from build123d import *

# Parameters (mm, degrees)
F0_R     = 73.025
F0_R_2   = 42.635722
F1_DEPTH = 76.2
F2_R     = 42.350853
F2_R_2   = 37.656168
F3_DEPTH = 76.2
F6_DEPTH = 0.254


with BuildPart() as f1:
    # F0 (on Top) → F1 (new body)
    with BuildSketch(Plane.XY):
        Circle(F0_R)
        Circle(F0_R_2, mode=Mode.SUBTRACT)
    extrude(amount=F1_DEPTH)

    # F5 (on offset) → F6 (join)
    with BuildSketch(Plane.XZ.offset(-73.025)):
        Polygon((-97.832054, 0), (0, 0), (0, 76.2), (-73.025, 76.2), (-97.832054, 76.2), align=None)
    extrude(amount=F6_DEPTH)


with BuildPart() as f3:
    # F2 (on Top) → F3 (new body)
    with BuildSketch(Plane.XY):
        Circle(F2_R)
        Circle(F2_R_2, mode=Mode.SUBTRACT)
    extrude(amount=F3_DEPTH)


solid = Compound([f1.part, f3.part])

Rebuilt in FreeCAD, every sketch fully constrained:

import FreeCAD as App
import Part
import Sketcher
Q = App.Units.Quantity

doc = App.newDocument("Part")
body = doc.addObject("PartDesign::Body", "Body")

sketch1 = doc.addObject("Sketcher::SketchObject", "Sketch")
body.addObject(sketch1)
sketch1.AttachmentSupport = (doc.XY_Plane, [""])
sketch1.MapMode = "FlatFace"
sketch1.addGeometry([
    Part.Circle(App.Vector(0, 0, 0), App.Vector(0, 0, 1), 73),
    Part.Circle(App.Vector(0, 0, 0), App.Vector(0, 0, 1), 43),
], False)
sketch1.addConstraint([
    Sketcher.Constraint("Coincident", 0, 3, -1, 1),
    Sketcher.Constraint("Coincident", 1, 3, -1, 1),
    Sketcher.Constraint("Diameter", 0, Q("5.75 in")),
    Sketcher.Constraint("Diameter", 1, Q("85.271444 mm")),
])
pad1 = doc.addObject("PartDesign::Pad", "Pad")
body.addObject(pad1)
pad1.Profile = sketch1
pad1.Length = Q("3 in")

sketch2 = doc.addObject("Sketcher::SketchObject", "Sketch001")
body.addObject(sketch2)
sketch2.AttachmentSupport = (doc.XZ_Plane, [""])
sketch2.MapMode = "FlatFace"
sketch2.AttachmentOffset = App.Placement(App.Vector(0, 0, -2.875 * 25.4), App.Rotation())
sketch2.addGeometry([
    Part.LineSegment(App.Vector(-98, 0, 0), App.Vector(0, 0, 0)),
    Part.LineSegment(App.Vector(0, 0, 0), App.Vector(0, 76, 0)),
    Part.LineSegment(App.Vector(0, 76, 0), App.Vector(-98, 76, 0)),
    Part.LineSegment(App.Vector(-98, 76, 0), App.Vector(-98, 0, 0)),
], False)
sketch2.addConstraint([
    Sketcher.Constraint("Coincident", 0, 2, 1, 1),
    Sketcher.Constraint("Coincident", 1, 2, 2, 1),
    Sketcher.Constraint("Coincident", 2, 2, 3, 1),
    Sketcher.Constraint("Coincident", 3, 2, 0, 1),
    Sketcher.Constraint("Horizontal", 0),
    Sketcher.Constraint("Vertical", 1),
    Sketcher.Constraint("Horizontal", 2),
    Sketcher.Constraint("Vertical", 3),
    Sketcher.Constraint("Coincident", 0, 2, -1, 1),
    Sketcher.Constraint("DistanceY", 1, 1, 1, 2, Q("3 in")),
    Sketcher.Constraint("DistanceX", 0, 1, 0, 2, Q("97.832054 mm")),
])
pad2 = doc.addObject("PartDesign::Pad", "Pad001")
body.addObject(pad2)
pad2.Profile = sketch2
pad2.Length = Q("0.01 in")
body2 = doc.addObject("PartDesign::Body", "Body001")

sketch3 = doc.addObject("Sketcher::SketchObject", "Sketch002")
body2.addObject(sketch3)
sketch3.AttachmentSupport = (doc.getObject("XY_Plane001"), [""])
sketch3.MapMode = "FlatFace"
sketch3.addGeometry([
    Part.Circle(App.Vector(0, 0, 0), App.Vector(0, 0, 1), 42),
    Part.Circle(App.Vector(0, 0, 0), App.Vector(0, 0, 1), 38),
], False)
sketch3.addConstraint([
    Sketcher.Constraint("Coincident", 0, 3, -1, 1),
    Sketcher.Constraint("Coincident", 1, 3, -1, 1),
    Sketcher.Constraint("Diameter", 0, Q("84.701706 mm")),
    Sketcher.Constraint("Diameter", 1, Q("75.312336 mm")),
])
pad3 = doc.addObject("PartDesign::Pad", "Pad002")
body2.addObject(pad3)
pad3.Profile = sketch3
pad3.Length = Q("3 in")

doc.recompute()
